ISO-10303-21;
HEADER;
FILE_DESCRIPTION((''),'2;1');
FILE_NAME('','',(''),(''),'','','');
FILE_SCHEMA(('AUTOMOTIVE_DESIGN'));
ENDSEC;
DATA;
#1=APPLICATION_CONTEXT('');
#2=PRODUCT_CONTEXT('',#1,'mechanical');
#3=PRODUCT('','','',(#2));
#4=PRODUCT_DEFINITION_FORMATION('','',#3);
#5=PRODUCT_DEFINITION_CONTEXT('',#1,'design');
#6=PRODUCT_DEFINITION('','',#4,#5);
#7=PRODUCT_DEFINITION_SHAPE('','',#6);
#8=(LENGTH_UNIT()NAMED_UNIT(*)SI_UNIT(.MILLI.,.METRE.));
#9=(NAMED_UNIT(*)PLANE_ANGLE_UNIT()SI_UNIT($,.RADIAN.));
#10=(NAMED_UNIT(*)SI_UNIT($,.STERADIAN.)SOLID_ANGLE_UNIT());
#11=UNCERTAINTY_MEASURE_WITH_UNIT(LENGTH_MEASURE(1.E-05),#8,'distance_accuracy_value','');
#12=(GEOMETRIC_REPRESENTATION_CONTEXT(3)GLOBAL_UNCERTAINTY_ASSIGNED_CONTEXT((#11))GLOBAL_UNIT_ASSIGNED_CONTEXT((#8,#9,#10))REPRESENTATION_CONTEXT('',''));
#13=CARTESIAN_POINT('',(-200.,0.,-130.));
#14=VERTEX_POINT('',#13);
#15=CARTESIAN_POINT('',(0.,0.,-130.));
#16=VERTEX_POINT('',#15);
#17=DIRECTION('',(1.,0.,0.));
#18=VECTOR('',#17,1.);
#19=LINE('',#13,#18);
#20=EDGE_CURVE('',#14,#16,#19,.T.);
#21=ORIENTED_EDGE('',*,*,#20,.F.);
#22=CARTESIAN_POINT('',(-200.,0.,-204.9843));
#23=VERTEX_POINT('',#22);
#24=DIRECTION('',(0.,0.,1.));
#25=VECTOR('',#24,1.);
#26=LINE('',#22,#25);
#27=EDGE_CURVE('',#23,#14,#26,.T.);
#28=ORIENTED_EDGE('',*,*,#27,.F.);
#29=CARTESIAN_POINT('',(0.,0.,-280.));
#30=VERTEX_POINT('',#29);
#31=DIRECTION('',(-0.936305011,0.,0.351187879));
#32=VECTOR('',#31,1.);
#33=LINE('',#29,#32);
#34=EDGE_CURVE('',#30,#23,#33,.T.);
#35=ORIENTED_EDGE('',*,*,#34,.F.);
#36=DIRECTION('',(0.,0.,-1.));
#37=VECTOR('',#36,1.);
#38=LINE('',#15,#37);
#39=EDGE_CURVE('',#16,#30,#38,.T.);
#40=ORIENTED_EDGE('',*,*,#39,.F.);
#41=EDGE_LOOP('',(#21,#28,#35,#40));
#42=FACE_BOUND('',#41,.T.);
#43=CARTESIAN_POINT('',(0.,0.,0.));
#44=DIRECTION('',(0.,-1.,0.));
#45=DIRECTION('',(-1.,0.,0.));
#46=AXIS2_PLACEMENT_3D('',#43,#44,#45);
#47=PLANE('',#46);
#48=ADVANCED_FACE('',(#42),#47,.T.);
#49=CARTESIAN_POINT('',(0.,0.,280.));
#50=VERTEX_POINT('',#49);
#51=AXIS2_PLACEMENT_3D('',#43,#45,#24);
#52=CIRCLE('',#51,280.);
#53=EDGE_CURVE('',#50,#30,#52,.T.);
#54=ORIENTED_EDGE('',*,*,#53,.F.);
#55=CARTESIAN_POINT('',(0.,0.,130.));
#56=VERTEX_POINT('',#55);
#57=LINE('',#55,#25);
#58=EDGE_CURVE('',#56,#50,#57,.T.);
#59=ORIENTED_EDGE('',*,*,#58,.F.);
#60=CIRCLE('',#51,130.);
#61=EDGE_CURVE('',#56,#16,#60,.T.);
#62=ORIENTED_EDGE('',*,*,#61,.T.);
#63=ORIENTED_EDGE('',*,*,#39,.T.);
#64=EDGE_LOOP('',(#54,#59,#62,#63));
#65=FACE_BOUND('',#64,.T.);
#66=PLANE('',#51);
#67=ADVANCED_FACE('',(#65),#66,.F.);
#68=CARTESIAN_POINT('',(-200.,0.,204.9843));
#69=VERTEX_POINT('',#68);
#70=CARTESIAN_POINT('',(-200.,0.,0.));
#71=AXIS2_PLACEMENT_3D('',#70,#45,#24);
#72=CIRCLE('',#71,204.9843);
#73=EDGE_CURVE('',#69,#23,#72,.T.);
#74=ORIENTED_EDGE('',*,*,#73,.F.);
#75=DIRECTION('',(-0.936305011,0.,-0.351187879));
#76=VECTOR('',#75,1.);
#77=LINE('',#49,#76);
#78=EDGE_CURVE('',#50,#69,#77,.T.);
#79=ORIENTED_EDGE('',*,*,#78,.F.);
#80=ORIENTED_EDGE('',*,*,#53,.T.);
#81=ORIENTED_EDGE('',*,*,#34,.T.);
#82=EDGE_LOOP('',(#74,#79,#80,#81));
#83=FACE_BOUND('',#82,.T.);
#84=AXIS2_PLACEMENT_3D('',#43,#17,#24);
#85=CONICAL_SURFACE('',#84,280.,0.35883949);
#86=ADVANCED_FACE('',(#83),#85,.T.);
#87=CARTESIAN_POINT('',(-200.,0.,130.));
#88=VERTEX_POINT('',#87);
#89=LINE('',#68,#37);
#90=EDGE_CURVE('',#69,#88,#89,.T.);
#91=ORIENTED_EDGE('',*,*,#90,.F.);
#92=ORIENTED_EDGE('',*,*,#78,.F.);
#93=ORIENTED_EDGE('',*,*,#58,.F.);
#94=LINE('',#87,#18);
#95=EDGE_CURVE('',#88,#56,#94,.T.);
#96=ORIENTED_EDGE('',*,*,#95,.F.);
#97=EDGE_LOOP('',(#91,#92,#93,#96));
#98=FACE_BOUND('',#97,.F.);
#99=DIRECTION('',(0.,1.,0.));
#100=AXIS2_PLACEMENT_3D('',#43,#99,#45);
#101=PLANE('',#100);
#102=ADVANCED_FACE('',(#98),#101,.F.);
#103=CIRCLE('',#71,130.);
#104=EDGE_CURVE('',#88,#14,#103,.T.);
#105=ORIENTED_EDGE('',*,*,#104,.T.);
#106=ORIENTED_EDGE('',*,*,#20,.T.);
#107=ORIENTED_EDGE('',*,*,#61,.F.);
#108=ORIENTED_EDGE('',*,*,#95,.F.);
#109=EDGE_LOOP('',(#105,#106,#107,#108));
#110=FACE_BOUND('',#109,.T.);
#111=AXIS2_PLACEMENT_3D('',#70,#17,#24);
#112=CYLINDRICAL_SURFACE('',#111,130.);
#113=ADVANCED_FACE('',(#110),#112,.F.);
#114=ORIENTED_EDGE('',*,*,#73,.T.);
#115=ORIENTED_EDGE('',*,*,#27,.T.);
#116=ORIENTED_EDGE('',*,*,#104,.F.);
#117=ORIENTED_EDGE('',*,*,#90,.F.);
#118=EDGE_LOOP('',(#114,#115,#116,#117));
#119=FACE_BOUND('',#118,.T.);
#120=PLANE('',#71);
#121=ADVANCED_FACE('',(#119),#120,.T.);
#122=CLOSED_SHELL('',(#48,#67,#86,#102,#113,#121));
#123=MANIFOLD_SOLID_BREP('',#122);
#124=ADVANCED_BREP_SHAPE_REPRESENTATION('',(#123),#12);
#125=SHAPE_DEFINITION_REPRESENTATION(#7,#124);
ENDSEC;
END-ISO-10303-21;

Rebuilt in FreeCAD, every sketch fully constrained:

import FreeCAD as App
import Part
import Sketcher

V = App.Vector
Q = App.Units.Quantity


def add_polygon(sketch, points):
    """Adds a closed chain of lines whose ends are joined by coincident constraints."""
    first, n = sketch.GeometryCount, len(points)
    for a, b in zip(points, points[1:] + points[:1]):
        sketch.addGeometry(Part.LineSegment(App.Vector(*a, 0), App.Vector(*b, 0)), False)
    for i in range(n):
        sketch.addConstraint(Sketcher.Constraint("Coincident", first + i, 2, first + (i + 1) % n, 1))

doc = App.newDocument("Part")
params = doc.addObject("Spreadsheet::Sheet", "Params")
for row, (alias, value) in enumerate([
    ("sketch1_width", "200 mm"),
    ("sketch1_height", "150 mm"),
    ("revolution_angle", "180 deg"),
], start=1):
    params.set(f"A{row}", alias)
    params.set(f"B{row}", "=" + value)
    params.setAlias(f"B{row}", alias)

body = doc.addObject("PartDesign::Body", "Body")

# Sketch on XZ plane
sketch1 = doc.addObject("Sketcher::SketchObject", "Sketch")
body.addObject(sketch1)
sketch1.AttachmentSupport = (doc.XZ_Plane, [""])
sketch1.MapMode = "FlatFace"
add_polygon(sketch1, [(0, 280), (0, 130), (-200, 130), (-200, 205)])  # lines 0-3
sketch1.addConstraint([
    Sketcher.Constraint("Vertical", 0),
    Sketcher.Constraint("Horizontal", 1),
    Sketcher.Constraint("Vertical", 2),
    Sketcher.Constraint("PointOnObject", 0, 2, -2),
    Sketcher.Constraint("DistanceX", 1, 2, 1, 1, Q("200 mm")),
    Sketcher.Constraint("DistanceY", 0, 2, 0, 1, Q("150 mm")),
    Sketcher.Constraint("DistanceY", -1, 1, 0, 2, Q("130 mm")),
    Sketcher.Constraint("Angle", 3, Q("20.56 deg")),
])
sketch1.setExpression("Constraints[8]", "Params.sketch1_width")
sketch1.setExpression("Constraints[9]", "Params.sketch1_height")
revolution = doc.addObject("PartDesign::Revolution", "Revolution")
body.addObject(revolution)
revolution.Profile = sketch1
revolution.ReferenceAxis = (sketch1, ["H_Axis"])
revolution.setExpression("Angle", "Params.revolution_angle")
revolution.Reversed = True

doc.recompute()
